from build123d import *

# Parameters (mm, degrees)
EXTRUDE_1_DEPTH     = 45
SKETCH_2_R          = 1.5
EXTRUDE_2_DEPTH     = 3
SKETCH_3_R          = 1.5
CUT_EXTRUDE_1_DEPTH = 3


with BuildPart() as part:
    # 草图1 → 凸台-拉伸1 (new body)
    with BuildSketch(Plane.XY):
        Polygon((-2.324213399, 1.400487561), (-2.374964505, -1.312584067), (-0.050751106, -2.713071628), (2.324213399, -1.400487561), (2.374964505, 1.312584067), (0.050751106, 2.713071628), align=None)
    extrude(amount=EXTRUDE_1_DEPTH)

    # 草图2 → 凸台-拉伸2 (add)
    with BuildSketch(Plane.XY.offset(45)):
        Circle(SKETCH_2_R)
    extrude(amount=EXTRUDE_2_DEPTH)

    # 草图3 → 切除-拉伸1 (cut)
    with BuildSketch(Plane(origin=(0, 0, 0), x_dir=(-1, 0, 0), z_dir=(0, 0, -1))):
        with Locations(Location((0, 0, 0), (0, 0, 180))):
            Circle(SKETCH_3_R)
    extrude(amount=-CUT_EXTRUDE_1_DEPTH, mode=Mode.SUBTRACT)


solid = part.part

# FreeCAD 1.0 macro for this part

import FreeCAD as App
import Part
import Sketcher

V = App.Vector
Q = App.Units.Quantity


def add_polygon(sketch, points):
    """Adds a closed chain of lines whose ends are joined by coincident constraints."""
    first, n = sketch.GeometryCount, len(points)
    for a, b in zip(points, points[1:] + points[:1]):
        sketch.addGeometry(Part.LineSegment(App.Vector(*a, 0), App.Vector(*b, 0)), False)
    for i in range(n):
        sketch.addConstraint(Sketcher.Constraint("Coincident", first + i, 2, first + (i + 1) % n, 1))

doc = App.newDocument("Part")
body = doc.addObject("PartDesign::Body", "Body")

# Sketch on XY plane
sketch1 = doc.addObject("Sketcher::SketchObject", "Sketch")
body.addObject(sketch1)
sketch1.AttachmentSupport = (doc.XY_Plane, [""])
sketch1.MapMode = "FlatFace"
add_polygon(sketch1, [(-2.3, 1.4), (-2.4, -1.3), (-0.1, -2.7), (2.3, -1.4), (2.4, 1.3), (0.1, 2.7)])  # lines 0-5
sketch1.addConstraint(Sketcher.Constraint("Symmetric", 0, 2, 3, 2, -1, 1))
sketch1.addConstraint(Sketcher.Constraint("Symmetric", 1, 2, 4, 2, -1, 1))
sketch1.addConstraint(Sketcher.Constraint("Symmetric", 2, 2, 5, 2, -1, 1))
sketch1.addConstraint(Sketcher.Constraint("Equal", 0, 1))
sketch1.addConstraint(Sketcher.Constraint("Equal", 1, 2))
sketch1.addConstraint(Sketcher.Constraint("DistanceX", 1, 2, -1, 1, Q("0.050751 mm")))
sketch1.addConstraint(Sketcher.Constraint("DistanceY", 1, 2, -1, 1, Q("2.713072 mm")))
sketch1.addConstraint(Sketcher.Constraint("DistanceX", 2, 2, 3, 2, Q("0.050751 mm")))
sketch1.addConstraint(Sketcher.Constraint("DistanceY", 2, 2, 3, 2, Q("2.713072 mm")))
pad1 = doc.addObject("PartDesign::Pad", "Pad")
body.addObject(pad1)
pad1.Profile = sketch1
pad1.Length = 45

# Sketch on XY plane
sketch2 = doc.addObject("Sketcher::SketchObject", "Sketch001")
body.addObject(sketch2)
sketch2.AttachmentSupport = (doc.XY_Plane, [""])
sketch2.MapMode = "FlatFace"
sketch2.AttachmentOffset = App.Placement(V(0, 0, 45), App.Rotation())
sketch2.addGeometry(Part.Circle(V(0, 0, 0), V(0, 0, 1), 1.5), False)
sketch2.addConstraint(Sketcher.Constraint("Coincident", 0, 3, -1, 1))
sketch2.addConstraint(Sketcher.Constraint("Diameter", 0, Q("3 mm")))
pad2 = doc.addObject("PartDesign::Pad", "Pad001")
body.addObject(pad2)
pad2.Profile = sketch2
pad2.Length = 3

# Sketch on XY plane
sketch3 = doc.addObject("Sketcher::SketchObject", "Sketch002")
body.addObject(sketch3)
sketch3.AttachmentSupport = (doc.XY_Plane, [""])
sketch3.MapMode = "FlatFace"
sketch3.addGeometry(Part.Circle(V(0, 0, 0), V(0, 0, 1), 1.5), False)
sketch3.addConstraint(Sketcher.Constraint("Coincident", 0, 3, -1, 1))
sketch3.addConstraint(Sketcher.Constraint("Diameter", 0, Q("3 mm")))
pocket1 = doc.addObject("PartDesign::Pocket", "Pocket")
body.addObject(pocket1)
pocket1.Profile = sketch3
pocket1.Length = 3
pocket1.Reversed = True

doc.recompute()
